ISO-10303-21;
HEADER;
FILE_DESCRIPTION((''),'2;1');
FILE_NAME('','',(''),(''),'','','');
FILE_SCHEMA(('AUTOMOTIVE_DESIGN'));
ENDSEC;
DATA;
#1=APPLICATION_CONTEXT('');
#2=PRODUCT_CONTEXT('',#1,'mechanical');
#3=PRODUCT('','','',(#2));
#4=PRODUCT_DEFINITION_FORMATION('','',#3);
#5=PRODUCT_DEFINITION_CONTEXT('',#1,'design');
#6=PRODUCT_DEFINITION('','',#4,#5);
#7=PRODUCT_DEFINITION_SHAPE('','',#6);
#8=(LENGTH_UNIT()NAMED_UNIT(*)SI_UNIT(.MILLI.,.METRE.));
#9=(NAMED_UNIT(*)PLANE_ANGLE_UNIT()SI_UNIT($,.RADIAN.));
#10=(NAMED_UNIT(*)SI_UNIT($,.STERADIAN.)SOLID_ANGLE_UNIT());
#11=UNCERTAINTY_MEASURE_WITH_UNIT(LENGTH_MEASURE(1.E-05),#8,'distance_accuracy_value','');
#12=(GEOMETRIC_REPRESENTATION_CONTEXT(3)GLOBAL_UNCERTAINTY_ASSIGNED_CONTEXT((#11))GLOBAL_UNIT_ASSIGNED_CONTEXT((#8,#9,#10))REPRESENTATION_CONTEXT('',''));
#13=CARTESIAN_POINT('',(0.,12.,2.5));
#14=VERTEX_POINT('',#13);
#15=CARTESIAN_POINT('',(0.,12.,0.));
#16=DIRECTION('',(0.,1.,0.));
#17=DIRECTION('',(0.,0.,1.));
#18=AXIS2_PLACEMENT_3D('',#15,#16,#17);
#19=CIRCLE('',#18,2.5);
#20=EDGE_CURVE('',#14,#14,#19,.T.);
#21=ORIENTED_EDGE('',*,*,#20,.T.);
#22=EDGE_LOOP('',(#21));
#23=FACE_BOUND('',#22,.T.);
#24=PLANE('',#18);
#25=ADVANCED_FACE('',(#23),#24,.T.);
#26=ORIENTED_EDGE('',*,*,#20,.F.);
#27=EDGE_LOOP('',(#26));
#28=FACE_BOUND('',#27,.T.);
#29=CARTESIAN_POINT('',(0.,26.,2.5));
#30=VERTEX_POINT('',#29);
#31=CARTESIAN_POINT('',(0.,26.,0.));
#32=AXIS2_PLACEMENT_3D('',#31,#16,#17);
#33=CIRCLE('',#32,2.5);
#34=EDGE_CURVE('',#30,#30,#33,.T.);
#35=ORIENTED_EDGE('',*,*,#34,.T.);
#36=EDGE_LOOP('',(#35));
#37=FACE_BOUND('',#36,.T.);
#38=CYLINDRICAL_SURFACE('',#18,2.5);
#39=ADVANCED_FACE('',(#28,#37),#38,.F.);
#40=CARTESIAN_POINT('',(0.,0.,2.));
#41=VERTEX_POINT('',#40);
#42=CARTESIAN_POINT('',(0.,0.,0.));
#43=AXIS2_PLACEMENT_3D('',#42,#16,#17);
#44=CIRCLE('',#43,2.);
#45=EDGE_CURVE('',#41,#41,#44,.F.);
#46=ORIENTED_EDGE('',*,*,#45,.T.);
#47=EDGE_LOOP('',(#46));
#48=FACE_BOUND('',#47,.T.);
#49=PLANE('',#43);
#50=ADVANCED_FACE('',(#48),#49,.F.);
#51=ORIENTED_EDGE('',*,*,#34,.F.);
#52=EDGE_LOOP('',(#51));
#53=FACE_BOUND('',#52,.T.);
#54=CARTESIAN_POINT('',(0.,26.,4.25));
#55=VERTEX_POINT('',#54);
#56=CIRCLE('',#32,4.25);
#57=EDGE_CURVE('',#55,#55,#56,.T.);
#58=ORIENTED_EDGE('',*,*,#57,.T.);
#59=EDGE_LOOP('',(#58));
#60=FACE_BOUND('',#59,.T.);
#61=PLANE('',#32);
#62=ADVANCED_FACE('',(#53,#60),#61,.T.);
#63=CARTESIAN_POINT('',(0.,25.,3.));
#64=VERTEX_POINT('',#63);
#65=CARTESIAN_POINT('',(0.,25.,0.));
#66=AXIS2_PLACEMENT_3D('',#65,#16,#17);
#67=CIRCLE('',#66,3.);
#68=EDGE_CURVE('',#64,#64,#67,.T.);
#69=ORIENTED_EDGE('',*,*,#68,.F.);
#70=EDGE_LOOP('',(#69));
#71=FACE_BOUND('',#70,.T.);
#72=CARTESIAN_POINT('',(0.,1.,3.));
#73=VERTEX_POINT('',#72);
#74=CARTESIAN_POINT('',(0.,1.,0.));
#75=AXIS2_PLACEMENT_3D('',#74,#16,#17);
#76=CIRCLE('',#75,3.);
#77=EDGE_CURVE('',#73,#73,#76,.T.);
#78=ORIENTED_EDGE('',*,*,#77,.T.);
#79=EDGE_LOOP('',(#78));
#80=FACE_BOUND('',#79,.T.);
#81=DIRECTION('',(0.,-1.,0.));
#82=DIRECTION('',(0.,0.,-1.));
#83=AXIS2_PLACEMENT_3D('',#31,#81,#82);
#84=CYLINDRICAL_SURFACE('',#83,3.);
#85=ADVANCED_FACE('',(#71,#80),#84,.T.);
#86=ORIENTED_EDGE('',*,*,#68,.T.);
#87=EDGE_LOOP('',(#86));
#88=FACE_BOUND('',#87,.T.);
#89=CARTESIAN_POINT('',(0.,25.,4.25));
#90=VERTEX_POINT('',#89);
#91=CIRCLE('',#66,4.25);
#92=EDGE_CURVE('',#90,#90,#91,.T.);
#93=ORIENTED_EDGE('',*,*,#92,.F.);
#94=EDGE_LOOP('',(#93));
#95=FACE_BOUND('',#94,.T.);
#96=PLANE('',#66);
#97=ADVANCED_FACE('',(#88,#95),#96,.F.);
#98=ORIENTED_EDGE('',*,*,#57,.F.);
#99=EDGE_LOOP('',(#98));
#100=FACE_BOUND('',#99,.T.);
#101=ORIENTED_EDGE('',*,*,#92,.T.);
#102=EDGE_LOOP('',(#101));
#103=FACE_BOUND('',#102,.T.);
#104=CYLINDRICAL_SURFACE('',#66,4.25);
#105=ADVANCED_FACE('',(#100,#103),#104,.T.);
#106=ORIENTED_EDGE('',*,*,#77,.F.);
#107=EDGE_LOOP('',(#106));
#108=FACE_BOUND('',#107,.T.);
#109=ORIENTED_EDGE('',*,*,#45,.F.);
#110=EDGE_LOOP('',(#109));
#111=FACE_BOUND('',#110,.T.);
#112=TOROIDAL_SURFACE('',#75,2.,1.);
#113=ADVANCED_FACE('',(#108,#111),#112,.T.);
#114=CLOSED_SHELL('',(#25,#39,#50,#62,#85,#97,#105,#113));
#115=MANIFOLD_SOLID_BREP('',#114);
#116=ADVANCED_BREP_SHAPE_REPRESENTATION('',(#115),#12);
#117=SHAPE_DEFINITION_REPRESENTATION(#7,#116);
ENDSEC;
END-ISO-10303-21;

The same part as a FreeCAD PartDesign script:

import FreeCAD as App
import Part
import Sketcher

V = App.Vector


def edges_at(feature, points):
    """Names of the edges that pass closest to the given points."""
    edges = feature.Shape.Edges
    near = lambda p: min(range(len(edges)), key=lambda i: edges[i].distToShape(Part.Vertex(*p))[0])
    return sorted({f"Edge{near(p) + 1}" for p in points})

doc = App.newDocument("Part")
body = doc.addObject("PartDesign::Body", "Body")

# Sketch on XZ plane
sketch1 = body.newObject("Sketcher::SketchObject", "Sketch")
sketch1.AttachmentSupport = (doc.getObject("XZ_Plane"), [""])
sketch1.MapMode = "FlatFace"
sketch1.addGeometry(Part.Circle(V(0, 0, 0), V(0, 0, 1), 3), False)
sketch1.addConstraint([
    Sketcher.Constraint("Coincident", 0, 3, -1, 1),
    Sketcher.Constraint("Diameter", 0, 6.0),
])
pad1 = body.newObject("PartDesign::Pad", "Pad")
pad1.Profile = sketch1
pad1.Length = 26
pad1.Reversed = True

# Sketch on XZ plane
sketch2 = body.newObject("Sketcher::SketchObject", "Sketch001")
sketch2.AttachmentSupport = (doc.getObject("XZ_Plane"), [""])
sketch2.MapMode = "FlatFace"
sketch2.AttachmentOffset = App.Placement(V(0, 0, -26), App.Rotation())
sketch2.addGeometry(Part.Circle(V(0, 0, 0), V(0, 0, 1), 2.5), False)
sketch2.addConstraint([
    Sketcher.Constraint("Coincident", 0, 3, -1, 1),
    Sketcher.Constraint("Diameter", 0, 5.0),
])
pocket1 = body.newObject("PartDesign::Pocket", "Pocket")
pocket1.Profile = sketch2
pocket1.Length = 14
pocket1.Reversed = True
doc.recompute()

fillet = body.newObject("PartDesign::Fillet", "Fillet")
fillet.Base = (pocket1, edges_at(pocket1, [(0, 0, -3)]))
fillet.Radius = 1

# Sketch on XZ plane
sketch3 = body.newObject("Sketcher::SketchObject", "Sketch002")
sketch3.AttachmentSupport = (doc.getObject("XZ_Plane"), [""])
sketch3.MapMode = "FlatFace"
sketch3.AttachmentOffset = App.Placement(V(0, 0, -25), App.Rotation())
sketch3.addGeometry([
    Part.Circle(V(0, 0, 0), V(0, 0, 1), 4.2),
    Part.Circle(V(0, 0, 0), V(0, 0, 1), 3),
], False)
sketch3.addConstraint([
    Sketcher.Constraint("Coincident", 0, 3, -1, 1),
    Sketcher.Constraint("Coincident", 1, 3, -1, 1),
    Sketcher.Constraint("Diameter", 1, 6.0),
    Sketcher.Constraint("Diameter", 0, 8.5),
])
pad2 = body.newObject("PartDesign::Pad", "Pad001")
pad2.Profile = sketch3
pad2.Length = 1
pad2.Reversed = True

doc.recompute()
